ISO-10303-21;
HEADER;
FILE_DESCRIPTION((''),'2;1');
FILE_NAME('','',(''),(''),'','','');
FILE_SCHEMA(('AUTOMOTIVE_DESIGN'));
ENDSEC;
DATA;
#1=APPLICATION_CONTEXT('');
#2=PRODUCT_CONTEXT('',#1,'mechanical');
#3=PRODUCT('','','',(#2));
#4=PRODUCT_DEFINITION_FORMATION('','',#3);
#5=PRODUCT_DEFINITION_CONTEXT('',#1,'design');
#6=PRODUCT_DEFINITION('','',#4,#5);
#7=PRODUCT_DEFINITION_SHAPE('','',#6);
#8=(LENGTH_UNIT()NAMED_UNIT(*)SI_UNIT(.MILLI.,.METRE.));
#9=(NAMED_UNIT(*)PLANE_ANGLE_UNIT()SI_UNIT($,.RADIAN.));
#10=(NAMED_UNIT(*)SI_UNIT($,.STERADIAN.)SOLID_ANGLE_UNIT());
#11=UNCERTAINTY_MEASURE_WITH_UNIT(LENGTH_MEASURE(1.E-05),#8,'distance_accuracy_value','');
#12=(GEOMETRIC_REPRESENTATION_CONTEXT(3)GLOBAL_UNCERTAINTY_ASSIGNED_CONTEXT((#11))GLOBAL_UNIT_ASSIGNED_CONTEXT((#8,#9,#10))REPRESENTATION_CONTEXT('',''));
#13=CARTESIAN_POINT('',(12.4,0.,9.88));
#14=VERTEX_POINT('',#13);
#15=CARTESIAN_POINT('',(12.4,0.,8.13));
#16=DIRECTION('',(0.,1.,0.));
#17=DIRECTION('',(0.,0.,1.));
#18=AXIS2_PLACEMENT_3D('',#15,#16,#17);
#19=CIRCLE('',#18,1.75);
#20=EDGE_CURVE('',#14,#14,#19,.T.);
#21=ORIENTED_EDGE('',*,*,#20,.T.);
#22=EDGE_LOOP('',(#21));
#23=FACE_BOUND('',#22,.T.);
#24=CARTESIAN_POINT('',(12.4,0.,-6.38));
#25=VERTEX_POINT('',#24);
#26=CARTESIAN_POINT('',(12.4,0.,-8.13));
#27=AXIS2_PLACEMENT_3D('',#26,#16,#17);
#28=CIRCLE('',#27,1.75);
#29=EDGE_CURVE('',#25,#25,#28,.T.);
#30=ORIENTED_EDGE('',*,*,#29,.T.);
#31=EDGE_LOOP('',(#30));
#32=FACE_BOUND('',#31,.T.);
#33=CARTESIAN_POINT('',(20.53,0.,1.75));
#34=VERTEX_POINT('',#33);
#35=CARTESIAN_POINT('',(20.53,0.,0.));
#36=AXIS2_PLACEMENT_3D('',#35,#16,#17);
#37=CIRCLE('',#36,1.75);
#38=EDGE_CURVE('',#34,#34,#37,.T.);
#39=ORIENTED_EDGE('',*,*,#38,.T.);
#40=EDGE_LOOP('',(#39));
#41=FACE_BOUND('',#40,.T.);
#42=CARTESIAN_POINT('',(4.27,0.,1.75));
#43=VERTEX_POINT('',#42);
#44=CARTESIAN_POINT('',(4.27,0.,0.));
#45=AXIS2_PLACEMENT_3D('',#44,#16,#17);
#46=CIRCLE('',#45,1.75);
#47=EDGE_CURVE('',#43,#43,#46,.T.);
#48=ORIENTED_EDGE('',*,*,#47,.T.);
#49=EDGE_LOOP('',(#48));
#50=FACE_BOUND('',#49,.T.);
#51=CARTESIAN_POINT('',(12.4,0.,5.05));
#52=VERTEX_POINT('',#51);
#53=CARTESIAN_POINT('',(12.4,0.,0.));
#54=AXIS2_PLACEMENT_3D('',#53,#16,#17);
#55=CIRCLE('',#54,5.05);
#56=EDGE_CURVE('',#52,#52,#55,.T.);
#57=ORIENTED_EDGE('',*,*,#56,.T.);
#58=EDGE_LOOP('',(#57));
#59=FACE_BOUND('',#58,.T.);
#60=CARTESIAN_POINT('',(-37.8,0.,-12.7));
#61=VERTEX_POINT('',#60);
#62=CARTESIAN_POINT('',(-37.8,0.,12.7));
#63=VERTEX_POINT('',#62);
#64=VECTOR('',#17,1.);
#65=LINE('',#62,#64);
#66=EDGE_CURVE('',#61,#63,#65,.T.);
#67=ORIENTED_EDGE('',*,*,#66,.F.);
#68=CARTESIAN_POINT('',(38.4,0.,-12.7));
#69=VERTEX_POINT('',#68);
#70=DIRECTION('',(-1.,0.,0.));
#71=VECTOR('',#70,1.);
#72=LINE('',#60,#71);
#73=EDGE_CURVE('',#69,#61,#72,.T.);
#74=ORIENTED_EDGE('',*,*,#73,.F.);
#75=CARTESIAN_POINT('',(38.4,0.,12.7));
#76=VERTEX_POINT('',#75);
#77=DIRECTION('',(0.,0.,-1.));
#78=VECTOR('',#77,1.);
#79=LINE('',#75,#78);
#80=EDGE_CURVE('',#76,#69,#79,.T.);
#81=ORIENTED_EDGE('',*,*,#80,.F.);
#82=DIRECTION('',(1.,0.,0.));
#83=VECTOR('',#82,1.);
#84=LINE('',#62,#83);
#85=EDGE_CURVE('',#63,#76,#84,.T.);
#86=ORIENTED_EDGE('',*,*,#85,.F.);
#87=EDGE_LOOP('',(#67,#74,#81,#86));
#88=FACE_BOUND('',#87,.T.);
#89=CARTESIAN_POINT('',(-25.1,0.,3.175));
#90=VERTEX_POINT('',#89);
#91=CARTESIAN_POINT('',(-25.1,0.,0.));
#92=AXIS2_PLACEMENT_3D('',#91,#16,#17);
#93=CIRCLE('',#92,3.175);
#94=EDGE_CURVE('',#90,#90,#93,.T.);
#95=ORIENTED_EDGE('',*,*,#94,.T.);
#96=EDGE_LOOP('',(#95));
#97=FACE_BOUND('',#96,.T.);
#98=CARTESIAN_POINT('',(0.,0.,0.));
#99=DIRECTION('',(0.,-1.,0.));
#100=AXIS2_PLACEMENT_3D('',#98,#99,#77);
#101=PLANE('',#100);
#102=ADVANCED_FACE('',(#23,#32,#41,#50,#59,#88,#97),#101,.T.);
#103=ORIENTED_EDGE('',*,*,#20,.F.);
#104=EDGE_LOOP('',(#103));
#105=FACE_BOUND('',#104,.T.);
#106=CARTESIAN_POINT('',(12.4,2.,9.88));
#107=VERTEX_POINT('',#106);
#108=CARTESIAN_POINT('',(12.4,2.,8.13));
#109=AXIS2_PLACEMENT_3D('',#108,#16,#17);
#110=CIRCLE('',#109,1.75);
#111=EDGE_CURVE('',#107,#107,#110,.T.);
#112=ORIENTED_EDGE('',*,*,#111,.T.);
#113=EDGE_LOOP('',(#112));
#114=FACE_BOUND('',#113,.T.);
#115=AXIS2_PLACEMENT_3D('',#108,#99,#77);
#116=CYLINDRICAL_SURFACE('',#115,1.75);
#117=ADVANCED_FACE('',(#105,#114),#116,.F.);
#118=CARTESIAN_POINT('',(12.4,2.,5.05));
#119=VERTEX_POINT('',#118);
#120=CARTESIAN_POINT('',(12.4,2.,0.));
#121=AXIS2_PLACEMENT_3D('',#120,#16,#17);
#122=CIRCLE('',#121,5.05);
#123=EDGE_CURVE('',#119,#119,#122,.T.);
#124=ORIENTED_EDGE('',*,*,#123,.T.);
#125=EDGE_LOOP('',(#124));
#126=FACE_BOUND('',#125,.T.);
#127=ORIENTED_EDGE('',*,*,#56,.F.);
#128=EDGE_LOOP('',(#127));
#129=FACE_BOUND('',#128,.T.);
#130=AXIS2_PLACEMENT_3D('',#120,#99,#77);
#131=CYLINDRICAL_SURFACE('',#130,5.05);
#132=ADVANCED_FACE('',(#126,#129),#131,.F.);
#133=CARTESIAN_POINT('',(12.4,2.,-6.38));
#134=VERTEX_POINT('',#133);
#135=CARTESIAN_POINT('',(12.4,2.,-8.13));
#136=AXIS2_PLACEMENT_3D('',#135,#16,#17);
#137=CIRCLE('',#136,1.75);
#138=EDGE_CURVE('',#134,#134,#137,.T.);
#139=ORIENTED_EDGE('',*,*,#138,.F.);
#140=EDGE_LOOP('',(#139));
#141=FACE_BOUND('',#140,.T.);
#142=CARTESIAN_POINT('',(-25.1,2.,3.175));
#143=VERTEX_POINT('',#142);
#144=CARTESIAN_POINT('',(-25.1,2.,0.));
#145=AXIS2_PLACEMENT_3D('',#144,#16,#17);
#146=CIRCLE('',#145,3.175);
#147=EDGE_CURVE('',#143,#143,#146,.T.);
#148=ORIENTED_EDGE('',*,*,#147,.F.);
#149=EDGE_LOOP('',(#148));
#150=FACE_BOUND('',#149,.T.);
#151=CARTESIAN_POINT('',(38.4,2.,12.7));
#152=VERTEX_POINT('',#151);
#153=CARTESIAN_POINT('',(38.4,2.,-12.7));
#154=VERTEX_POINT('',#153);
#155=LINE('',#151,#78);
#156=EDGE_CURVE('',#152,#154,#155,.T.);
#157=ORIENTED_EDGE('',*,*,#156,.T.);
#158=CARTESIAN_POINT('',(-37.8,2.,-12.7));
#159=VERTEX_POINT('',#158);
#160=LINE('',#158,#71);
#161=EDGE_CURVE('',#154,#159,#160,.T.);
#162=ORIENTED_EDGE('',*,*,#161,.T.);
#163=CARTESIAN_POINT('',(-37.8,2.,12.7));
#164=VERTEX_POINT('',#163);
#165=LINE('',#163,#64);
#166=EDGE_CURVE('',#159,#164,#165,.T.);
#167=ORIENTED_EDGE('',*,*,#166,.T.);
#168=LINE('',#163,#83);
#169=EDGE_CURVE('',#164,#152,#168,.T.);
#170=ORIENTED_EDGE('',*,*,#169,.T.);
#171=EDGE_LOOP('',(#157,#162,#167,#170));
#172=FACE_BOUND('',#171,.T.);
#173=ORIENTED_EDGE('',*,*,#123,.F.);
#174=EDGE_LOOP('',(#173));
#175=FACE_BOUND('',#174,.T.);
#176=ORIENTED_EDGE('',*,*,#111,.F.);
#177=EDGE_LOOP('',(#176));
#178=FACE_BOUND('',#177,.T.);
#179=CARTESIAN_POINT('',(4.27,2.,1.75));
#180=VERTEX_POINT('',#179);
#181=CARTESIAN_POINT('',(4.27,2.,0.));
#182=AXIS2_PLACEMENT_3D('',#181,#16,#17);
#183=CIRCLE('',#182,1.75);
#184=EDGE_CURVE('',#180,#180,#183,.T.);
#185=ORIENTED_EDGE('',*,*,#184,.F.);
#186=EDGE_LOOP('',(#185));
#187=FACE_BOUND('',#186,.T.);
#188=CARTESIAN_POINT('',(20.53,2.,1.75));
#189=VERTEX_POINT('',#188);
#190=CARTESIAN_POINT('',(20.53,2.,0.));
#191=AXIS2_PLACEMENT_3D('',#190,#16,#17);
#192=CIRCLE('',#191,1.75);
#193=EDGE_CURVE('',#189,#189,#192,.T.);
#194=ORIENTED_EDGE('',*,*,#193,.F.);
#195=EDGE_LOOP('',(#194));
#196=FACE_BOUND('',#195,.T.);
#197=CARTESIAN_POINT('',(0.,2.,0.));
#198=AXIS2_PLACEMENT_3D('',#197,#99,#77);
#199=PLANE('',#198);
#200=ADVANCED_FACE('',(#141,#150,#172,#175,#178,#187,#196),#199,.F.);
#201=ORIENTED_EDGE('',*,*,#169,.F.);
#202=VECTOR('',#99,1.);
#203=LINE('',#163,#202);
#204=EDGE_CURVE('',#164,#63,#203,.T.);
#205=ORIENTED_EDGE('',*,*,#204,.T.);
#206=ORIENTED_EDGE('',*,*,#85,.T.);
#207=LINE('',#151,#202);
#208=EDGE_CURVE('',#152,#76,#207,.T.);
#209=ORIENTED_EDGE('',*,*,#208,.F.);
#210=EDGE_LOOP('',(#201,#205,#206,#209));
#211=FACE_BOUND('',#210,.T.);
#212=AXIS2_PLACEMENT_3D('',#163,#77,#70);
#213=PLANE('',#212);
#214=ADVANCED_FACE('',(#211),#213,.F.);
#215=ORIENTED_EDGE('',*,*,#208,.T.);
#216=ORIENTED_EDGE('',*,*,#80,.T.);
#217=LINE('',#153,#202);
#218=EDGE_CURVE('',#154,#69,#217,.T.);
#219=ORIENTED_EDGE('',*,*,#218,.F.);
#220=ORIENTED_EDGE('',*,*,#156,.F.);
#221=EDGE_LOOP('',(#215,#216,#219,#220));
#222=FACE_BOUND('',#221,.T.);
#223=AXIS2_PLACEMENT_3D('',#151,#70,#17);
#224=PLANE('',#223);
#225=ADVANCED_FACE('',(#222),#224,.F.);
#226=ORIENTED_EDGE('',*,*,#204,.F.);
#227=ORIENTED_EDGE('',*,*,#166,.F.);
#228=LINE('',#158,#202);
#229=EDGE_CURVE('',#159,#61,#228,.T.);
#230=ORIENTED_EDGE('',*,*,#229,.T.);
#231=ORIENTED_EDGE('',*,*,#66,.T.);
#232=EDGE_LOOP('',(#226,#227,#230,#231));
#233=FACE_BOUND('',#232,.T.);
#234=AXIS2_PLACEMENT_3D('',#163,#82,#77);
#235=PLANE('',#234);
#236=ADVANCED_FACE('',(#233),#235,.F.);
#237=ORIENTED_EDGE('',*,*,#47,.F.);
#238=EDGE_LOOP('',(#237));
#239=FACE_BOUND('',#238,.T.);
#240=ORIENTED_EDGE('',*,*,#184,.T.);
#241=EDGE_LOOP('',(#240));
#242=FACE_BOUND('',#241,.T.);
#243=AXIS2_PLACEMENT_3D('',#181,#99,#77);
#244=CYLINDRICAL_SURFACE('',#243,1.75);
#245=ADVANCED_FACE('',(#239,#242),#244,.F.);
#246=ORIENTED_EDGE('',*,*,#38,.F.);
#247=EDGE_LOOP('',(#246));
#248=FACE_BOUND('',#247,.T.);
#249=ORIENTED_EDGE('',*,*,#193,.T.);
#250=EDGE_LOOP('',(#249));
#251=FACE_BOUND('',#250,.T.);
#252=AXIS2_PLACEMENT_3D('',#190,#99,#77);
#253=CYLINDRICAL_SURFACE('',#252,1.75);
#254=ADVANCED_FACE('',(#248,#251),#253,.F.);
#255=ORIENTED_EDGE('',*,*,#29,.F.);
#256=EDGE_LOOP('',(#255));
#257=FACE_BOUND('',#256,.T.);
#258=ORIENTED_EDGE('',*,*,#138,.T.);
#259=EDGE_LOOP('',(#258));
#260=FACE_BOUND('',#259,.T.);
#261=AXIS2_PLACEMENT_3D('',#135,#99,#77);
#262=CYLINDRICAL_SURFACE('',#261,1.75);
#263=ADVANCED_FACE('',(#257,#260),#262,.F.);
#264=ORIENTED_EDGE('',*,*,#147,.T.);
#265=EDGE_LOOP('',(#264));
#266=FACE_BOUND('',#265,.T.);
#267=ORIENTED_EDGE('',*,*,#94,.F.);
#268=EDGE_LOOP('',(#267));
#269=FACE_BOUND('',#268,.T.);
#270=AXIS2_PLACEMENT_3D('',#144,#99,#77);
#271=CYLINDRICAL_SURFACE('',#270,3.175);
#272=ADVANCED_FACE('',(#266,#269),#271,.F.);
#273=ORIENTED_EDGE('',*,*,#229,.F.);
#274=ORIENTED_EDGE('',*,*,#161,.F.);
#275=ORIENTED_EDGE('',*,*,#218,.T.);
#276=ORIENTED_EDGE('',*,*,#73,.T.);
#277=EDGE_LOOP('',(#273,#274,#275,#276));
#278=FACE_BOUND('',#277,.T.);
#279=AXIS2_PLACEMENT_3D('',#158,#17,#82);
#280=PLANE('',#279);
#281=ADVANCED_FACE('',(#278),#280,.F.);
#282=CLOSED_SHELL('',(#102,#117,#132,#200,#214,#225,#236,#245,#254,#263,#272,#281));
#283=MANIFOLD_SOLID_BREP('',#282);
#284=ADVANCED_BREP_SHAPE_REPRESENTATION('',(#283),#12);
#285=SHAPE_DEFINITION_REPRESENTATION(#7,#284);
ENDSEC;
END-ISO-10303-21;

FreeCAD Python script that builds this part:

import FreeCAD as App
import Part
import Sketcher

doc = App.newDocument("Part")
params = doc.addObject("Spreadsheet::Sheet", "Params")
for row, (alias, value) in enumerate([
    ("sketch1_diameter", "3.5 mm"),
    ("sketch1_diameter2", "10.1 mm"),
    ("sketch1_diameter3", "6.35 mm"),
    ("sketch1_width", "76.2 mm"),
    ("sketch1_height", "25.4 mm"),
    ("pad1_length", "2 mm"),
], start=1):
    params.set(f"A{row}", alias)
    params.set(f"B{row}", "=" + value)
    params.setAlias(f"B{row}", alias)

body = doc.addObject("PartDesign::Body", "Body")

# Sketch on XZ plane
sketch1 = body.newObject("Sketcher::SketchObject", "Sketch")
sketch1.AttachmentSupport = (doc.getObject("XZ_Plane"), [""])
sketch1.MapMode = "FlatFace"
sketch1.addGeometry([
    Part.LineSegment(App.Vector(-37.8, -12.7, 0), App.Vector(-37.8, 12.7, 0)),  # 0
    Part.LineSegment(App.Vector(-37.8, 12.7, 0), App.Vector(38.4, 12.7, 0)),  # 1
    Part.LineSegment(App.Vector(38.4, 12.7, 0), App.Vector(38.4, -12.7, 0)),  # 2
    Part.LineSegment(App.Vector(38.4, -12.7, 0), App.Vector(-37.8, -12.7, 0)),  # 3
    Part.Circle(App.Vector(12.4, 8.1, 0), App.Vector(0, 0, 1), 1.8),  # 4
    Part.Circle(App.Vector(-25.1, 0, 0), App.Vector(0, 0, 1), 3.2),  # 5
    Part.Circle(App.Vector(4.3, 0, 0), App.Vector(0, 0, 1), 1.8),  # 6
    Part.Circle(App.Vector(12.4, 0, 0), App.Vector(0, 0, 1), 5),  # 7
    Part.Circle(App.Vector(20.5, 0, 0), App.Vector(0, 0, 1), 1.8),  # 8
    Part.Circle(App.Vector(12.4, -8.1, 0), App.Vector(0, 0, 1), 1.8),  # 9
], False)
sketch1.addConstraint([
    Sketcher.Constraint("Coincident", 0, 2, 1, 1),
    Sketcher.Constraint("Coincident", 1, 2, 2, 1),
    Sketcher.Constraint("Coincident", 2, 2, 3, 1),
    Sketcher.Constraint("Coincident", 3, 2, 0, 1),
    Sketcher.Constraint("Vertical", 0),
    Sketcher.Constraint("Horizontal", 1),
    Sketcher.Constraint("Vertical", 2),
    Sketcher.Constraint("Horizontal", 3),
    Sketcher.Constraint("Equal", 4, 6),
    Sketcher.Constraint("Equal", 6, 8),
    Sketcher.Constraint("Equal", 8, 9),
    Sketcher.Constraint("Symmetric", 4, 3, 9, 3, -1),
    Sketcher.Constraint("PointOnObject", 5, 3, -1),
    Sketcher.Constraint("PointOnObject", 6, 3, -1),
    Sketcher.Constraint("PointOnObject", 7, 3, -1),
    Sketcher.Constraint("PointOnObject", 8, 3, -1),
    Sketcher.Constraint("Vertical", 4, 3, 7, 3),
    Sketcher.Constraint("Diameter", 4, 3.5),
    Sketcher.Constraint("Diameter", 7, 10.1),
    Sketcher.Constraint("Diameter", 5, 6.35),
    Sketcher.Constraint("DistanceX", 1, 1, 1, 2, 76.2),
    Sketcher.Constraint("DistanceY", 0, 1, 0, 2, 25.4),
    Sketcher.Constraint("DistanceX", 4, 3, 1, 2, 26.0),
    Sketcher.Constraint("DistanceX", -1, 1, 4, 3, 12.4),
    Sketcher.Constraint("DistanceX", 5, 3, -1, 1, 25.1),
    Sketcher.Constraint("DistanceY", -1, 1, 0, 2, 12.7),
    Sketcher.Constraint("DistanceY", -1, 1, 4, 3, 8.13),
    Sketcher.Constraint("DistanceX", -1, 1, 6, 3, 4.27),
    Sketcher.Constraint("DistanceX", -1, 1, 8, 3, 20.53),
])
sketch1.setExpression("Constraints[17]", "Params.sketch1_diameter")
sketch1.setExpression("Constraints[18]", "Params.sketch1_diameter2")
sketch1.setExpression("Constraints[19]", "Params.sketch1_diameter3")
sketch1.setExpression("Constraints[20]", "Params.sketch1_width")
sketch1.setExpression("Constraints[21]", "Params.sketch1_height")
pad1 = body.newObject("PartDesign::Pad", "Pad")
pad1.Profile = sketch1
pad1.setExpression("Length", "Params.pad1_length")
pad1.Reversed = True

doc.recompute()
